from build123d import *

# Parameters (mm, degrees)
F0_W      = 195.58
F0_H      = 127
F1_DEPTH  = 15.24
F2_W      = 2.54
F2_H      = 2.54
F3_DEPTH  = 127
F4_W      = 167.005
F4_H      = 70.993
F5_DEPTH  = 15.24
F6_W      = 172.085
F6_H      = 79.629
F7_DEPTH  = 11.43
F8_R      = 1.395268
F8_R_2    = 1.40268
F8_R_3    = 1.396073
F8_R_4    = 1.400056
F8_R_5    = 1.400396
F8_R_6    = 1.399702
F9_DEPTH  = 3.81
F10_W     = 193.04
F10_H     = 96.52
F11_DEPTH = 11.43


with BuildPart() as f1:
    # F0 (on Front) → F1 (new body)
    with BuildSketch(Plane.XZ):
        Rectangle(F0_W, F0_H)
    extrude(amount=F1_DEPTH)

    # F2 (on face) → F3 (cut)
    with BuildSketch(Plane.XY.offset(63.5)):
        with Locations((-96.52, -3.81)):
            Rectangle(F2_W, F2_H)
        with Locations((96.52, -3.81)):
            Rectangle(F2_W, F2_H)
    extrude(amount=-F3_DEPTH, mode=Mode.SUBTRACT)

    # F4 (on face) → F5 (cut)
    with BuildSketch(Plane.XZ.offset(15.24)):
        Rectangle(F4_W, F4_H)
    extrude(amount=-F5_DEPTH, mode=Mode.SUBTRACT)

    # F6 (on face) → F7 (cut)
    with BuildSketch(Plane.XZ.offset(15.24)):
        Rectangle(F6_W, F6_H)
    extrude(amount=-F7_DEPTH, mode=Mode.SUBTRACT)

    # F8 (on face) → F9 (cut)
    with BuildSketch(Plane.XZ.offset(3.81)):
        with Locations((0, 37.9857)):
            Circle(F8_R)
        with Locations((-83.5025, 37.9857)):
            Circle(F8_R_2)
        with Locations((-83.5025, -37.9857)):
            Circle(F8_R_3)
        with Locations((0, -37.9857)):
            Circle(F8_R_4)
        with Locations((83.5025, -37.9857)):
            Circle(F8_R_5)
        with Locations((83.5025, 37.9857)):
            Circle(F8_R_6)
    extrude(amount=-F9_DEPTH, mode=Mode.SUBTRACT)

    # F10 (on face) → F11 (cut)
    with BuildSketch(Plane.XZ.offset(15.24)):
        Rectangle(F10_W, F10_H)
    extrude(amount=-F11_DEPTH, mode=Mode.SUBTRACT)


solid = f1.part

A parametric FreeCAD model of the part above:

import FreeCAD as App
import Part
import Sketcher
Q = App.Units.Quantity


def add_polygon(sketch, points):
    """Adds a closed chain of lines whose ends are joined by coincident constraints."""
    first, n = sketch.GeometryCount, len(points)
    for a, b in zip(points, points[1:] + points[:1]):
        sketch.addGeometry(Part.LineSegment(App.Vector(*a, 0), App.Vector(*b, 0)), False)
    for i in range(n):
        sketch.addConstraint(Sketcher.Constraint("Coincident", first + i, 2, first + (i + 1) % n, 1))

doc = App.newDocument("Part")
body = doc.addObject("PartDesign::Body", "Body")

# Sketch on XZ plane
sketch1 = doc.addObject("Sketcher::SketchObject", "Sketch")
body.addObject(sketch1)
sketch1.AttachmentSupport = (doc.XZ_Plane, [""])
sketch1.MapMode = "FlatFace"
add_polygon(sketch1, [(-98, 64), (-98, -64), (98, -64), (98, 64)])  # lines 0-3
sketch1.addConstraint([
    Sketcher.Constraint("Vertical", 0),
    Sketcher.Constraint("Horizontal", 1),
    Sketcher.Constraint("Vertical", 2),
    Sketcher.Constraint("Horizontal", 3),
    Sketcher.Constraint("Symmetric", 0, 2, 2, 2, -1, 1),
    Sketcher.Constraint("DistanceY", 0, 2, 0, 1, Q("5 in")),
    Sketcher.Constraint("DistanceX", 1, 1, 1, 2, Q("7.7 in")),
])
pad1 = doc.addObject("PartDesign::Pad", "Pad")
body.addObject(pad1)
pad1.Profile = sketch1
pad1.Length = Q("0.6 in")

# Sketch on XY plane
sketch2 = doc.addObject("Sketcher::SketchObject", "Sketch001")
body.addObject(sketch2)
sketch2.AttachmentSupport = (doc.XY_Plane, [""])
sketch2.MapMode = "FlatFace"
sketch2.AttachmentOffset = App.Placement(App.Vector(0, 0, 2.5 * 25.4), App.Rotation())
add_polygon(sketch2, [(-97.8, -2.5), (-97.8, -5.1), (-95.2, -5.1), (-95.2, -2.5)])  # lines 0-3
add_polygon(sketch2, [(95.2, -2.5), (95.2, -5.1), (97.8, -5.1), (97.8, -2.5)])  # lines 4-7
sketch2.addConstraint([
    Sketcher.Constraint("Vertical", 0),
    Sketcher.Constraint("Horizontal", 1),
    Sketcher.Constraint("Vertical", 2),
    Sketcher.Constraint("Horizontal", 3),
    Sketcher.Constraint("Vertical", 4),
    Sketcher.Constraint("Horizontal", 5),
    Sketcher.Constraint("Vertical", 6),
    Sketcher.Constraint("Horizontal", 7),
    Sketcher.Constraint("Symmetric", 1, 2, 4, 2, -2),
    Sketcher.Constraint("Symmetric", 3, 2, 6, 2, -2),
    Sketcher.Constraint("Equal", 7, 0),
    Sketcher.Constraint("DistanceX", 1, 1, 1, 2, Q("0.1 in")),
    Sketcher.Constraint("DistanceY", 0, 2, -1, 1, Q("0.2 in")),
    Sketcher.Constraint("DistanceX", 1, 2, 4, 2, Q("7.5 in")),
])
pocket1 = doc.addObject("PartDesign::Pocket", "Pocket")
body.addObject(pocket1)
pocket1.Profile = sketch2
pocket1.Length = Q("5 in")

# Sketch on XZ plane
sketch3 = doc.addObject("Sketcher::SketchObject", "Sketch002")
body.addObject(sketch3)
sketch3.AttachmentSupport = (doc.XZ_Plane, [""])
sketch3.MapMode = "FlatFace"
sketch3.AttachmentOffset = App.Placement(App.Vector(0, 0, 0.6 * 25.4), App.Rotation())
add_polygon(sketch3, [(-84, 35), (-84, -35), (84, -35), (84, 35)])  # lines 0-3
sketch3.addConstraint([
    Sketcher.Constraint("Vertical", 0),
    Sketcher.Constraint("Horizontal", 1),
    Sketcher.Constraint("Vertical", 2),
    Sketcher.Constraint("Horizontal", 3),
    Sketcher.Constraint("Symmetric", 0, 2, 2, 2, -1, 1),
    Sketcher.Constraint("DistanceX", 1, 1, 1, 2, Q("6.575 in")),
    Sketcher.Constraint("DistanceY", 0, 2, 0, 1, Q("2.795 in")),
])
pocket2 = doc.addObject("PartDesign::Pocket", "Pocket001")
body.addObject(pocket2)
pocket2.Profile = sketch3
pocket2.Length = Q("0.6 in")

# Sketch on XZ plane
sketch4 = doc.addObject("Sketcher::SketchObject", "Sketch003")
body.addObject(sketch4)
sketch4.AttachmentSupport = (doc.XZ_Plane, [""])
sketch4.MapMode = "FlatFace"
sketch4.AttachmentOffset = App.Placement(App.Vector(0, 0, 0.6 * 25.4), App.Rotation())
add_polygon(sketch4, [(-86, 40), (-86, -40), (86, -40), (86, 40)])  # lines 0-3
sketch4.addConstraint([
    Sketcher.Constraint("Vertical", 0),
    Sketcher.Constraint("Horizontal", 1),
    Sketcher.Constraint("Vertical", 2),
    Sketcher.Constraint("Horizontal", 3),
    Sketcher.Constraint("Symmetric", 0, 2, 2, 2, -1, 1),
    Sketcher.Constraint("DistanceX", 1, 1, 1, 2, Q("6.775 in")),
    Sketcher.Constraint("DistanceY", 0, 2, 0, 1, Q("3.135 in")),
])
pocket3 = doc.addObject("PartDesign::Pocket", "Pocket002")
body.addObject(pocket3)
pocket3.Profile = sketch4
pocket3.Length = Q("0.45 in")

# Sketch on XZ plane
sketch5 = doc.addObject("Sketcher::SketchObject", "Sketch004")
body.addObject(sketch5)
sketch5.AttachmentSupport = (doc.XZ_Plane, [""])
sketch5.MapMode = "FlatFace"
sketch5.AttachmentOffset = App.Placement(App.Vector(0, 0, 0.15 * 25.4), App.Rotation())
sketch5.addGeometry([
    Part.Circle(App.Vector(0, 38, 0), App.Vector(0, 0, 1), 1.4),  # 0
    Part.Circle(App.Vector(-83.5, 38, 0), App.Vector(0, 0, 1), 1.4),  # 1
    Part.Circle(App.Vector(-83.5, -38, 0), App.Vector(0, 0, 1), 1.4),  # 2
    Part.Circle(App.Vector(0, -38, 0), App.Vector(0, 0, 1), 1.4),  # 3
    Part.Circle(App.Vector(83.5, -38, 0), App.Vector(0, 0, 1), 1.4),  # 4
    Part.Circle(App.Vector(83.5, 38, 0), App.Vector(0, 0, 1), 1.4),  # 5
], False)
sketch5.addConstraint([
    Sketcher.Constraint("Symmetric", 0, 3, 3, 3, -1, 1),
    Sketcher.Constraint("Symmetric", 1, 3, 4, 3, -1, 1),
    Sketcher.Constraint("Symmetric", 2, 3, 5, 3, -1, 1),
    Sketcher.Constraint("Symmetric", 2, 3, 4, 3, -2),
    Sketcher.Constraint("PointOnObject", 0, 3, -2),
    Sketcher.Constraint("Horizontal", 0, 3, 1, 3),
    Sketcher.Constraint("Diameter", 1, Q("2.80536 mm")),
    Sketcher.Constraint("Diameter", 3, Q("2.800112 mm")),
    Sketcher.Constraint("Diameter", 4, Q("2.800792 mm")),
    Sketcher.Constraint("DistanceY", 2, 3, 1, 3, Q("2.991 in")),
    Sketcher.Constraint("DistanceX", 2, 3, 4, 3, Q("6.575 in")),
    Sketcher.Constraint("Diameter", 0, Q("2.790536 mm")),
    Sketcher.Constraint("Diameter", 2, Q("2.792146 mm")),
    Sketcher.Constraint("Diameter", 5, Q("2.799404 mm")),
])
pocket4 = doc.addObject("PartDesign::Pocket", "Pocket003")
body.addObject(pocket4)
pocket4.Profile = sketch5
pocket4.Length = Q("0.15 in")

# Sketch on XZ plane
sketch6 = doc.addObject("Sketcher::SketchObject", "Sketch005")
body.addObject(sketch6)
sketch6.AttachmentSupport = (doc.XZ_Plane, [""])
sketch6.MapMode = "FlatFace"
sketch6.AttachmentOffset = App.Placement(App.Vector(0, 0, 0.6 * 25.4), App.Rotation())
add_polygon(sketch6, [(-97, 48), (-97, -48), (97, -48), (97, 48)])  # lines 0-3
sketch6.addConstraint([
    Sketcher.Constraint("Vertical", 0),
    Sketcher.Constraint("Horizontal", 1),
    Sketcher.Constraint("Vertical", 2),
    Sketcher.Constraint("Horizontal", 3),
    Sketcher.Constraint("Symmetric", 0, 2, 2, 2, -1, 1),
    Sketcher.Constraint("DistanceX", 1, 1, 1, 2, Q("7.6 in")),
    Sketcher.Constraint("DistanceY", 0, 2, 0, 1, Q("3.8 in")),
])
pocket5 = doc.addObject("PartDesign::Pocket", "Pocket004")
body.addObject(pocket5)
pocket5.Profile = sketch6
pocket5.Length = Q("0.45 in")

doc.recompute()
